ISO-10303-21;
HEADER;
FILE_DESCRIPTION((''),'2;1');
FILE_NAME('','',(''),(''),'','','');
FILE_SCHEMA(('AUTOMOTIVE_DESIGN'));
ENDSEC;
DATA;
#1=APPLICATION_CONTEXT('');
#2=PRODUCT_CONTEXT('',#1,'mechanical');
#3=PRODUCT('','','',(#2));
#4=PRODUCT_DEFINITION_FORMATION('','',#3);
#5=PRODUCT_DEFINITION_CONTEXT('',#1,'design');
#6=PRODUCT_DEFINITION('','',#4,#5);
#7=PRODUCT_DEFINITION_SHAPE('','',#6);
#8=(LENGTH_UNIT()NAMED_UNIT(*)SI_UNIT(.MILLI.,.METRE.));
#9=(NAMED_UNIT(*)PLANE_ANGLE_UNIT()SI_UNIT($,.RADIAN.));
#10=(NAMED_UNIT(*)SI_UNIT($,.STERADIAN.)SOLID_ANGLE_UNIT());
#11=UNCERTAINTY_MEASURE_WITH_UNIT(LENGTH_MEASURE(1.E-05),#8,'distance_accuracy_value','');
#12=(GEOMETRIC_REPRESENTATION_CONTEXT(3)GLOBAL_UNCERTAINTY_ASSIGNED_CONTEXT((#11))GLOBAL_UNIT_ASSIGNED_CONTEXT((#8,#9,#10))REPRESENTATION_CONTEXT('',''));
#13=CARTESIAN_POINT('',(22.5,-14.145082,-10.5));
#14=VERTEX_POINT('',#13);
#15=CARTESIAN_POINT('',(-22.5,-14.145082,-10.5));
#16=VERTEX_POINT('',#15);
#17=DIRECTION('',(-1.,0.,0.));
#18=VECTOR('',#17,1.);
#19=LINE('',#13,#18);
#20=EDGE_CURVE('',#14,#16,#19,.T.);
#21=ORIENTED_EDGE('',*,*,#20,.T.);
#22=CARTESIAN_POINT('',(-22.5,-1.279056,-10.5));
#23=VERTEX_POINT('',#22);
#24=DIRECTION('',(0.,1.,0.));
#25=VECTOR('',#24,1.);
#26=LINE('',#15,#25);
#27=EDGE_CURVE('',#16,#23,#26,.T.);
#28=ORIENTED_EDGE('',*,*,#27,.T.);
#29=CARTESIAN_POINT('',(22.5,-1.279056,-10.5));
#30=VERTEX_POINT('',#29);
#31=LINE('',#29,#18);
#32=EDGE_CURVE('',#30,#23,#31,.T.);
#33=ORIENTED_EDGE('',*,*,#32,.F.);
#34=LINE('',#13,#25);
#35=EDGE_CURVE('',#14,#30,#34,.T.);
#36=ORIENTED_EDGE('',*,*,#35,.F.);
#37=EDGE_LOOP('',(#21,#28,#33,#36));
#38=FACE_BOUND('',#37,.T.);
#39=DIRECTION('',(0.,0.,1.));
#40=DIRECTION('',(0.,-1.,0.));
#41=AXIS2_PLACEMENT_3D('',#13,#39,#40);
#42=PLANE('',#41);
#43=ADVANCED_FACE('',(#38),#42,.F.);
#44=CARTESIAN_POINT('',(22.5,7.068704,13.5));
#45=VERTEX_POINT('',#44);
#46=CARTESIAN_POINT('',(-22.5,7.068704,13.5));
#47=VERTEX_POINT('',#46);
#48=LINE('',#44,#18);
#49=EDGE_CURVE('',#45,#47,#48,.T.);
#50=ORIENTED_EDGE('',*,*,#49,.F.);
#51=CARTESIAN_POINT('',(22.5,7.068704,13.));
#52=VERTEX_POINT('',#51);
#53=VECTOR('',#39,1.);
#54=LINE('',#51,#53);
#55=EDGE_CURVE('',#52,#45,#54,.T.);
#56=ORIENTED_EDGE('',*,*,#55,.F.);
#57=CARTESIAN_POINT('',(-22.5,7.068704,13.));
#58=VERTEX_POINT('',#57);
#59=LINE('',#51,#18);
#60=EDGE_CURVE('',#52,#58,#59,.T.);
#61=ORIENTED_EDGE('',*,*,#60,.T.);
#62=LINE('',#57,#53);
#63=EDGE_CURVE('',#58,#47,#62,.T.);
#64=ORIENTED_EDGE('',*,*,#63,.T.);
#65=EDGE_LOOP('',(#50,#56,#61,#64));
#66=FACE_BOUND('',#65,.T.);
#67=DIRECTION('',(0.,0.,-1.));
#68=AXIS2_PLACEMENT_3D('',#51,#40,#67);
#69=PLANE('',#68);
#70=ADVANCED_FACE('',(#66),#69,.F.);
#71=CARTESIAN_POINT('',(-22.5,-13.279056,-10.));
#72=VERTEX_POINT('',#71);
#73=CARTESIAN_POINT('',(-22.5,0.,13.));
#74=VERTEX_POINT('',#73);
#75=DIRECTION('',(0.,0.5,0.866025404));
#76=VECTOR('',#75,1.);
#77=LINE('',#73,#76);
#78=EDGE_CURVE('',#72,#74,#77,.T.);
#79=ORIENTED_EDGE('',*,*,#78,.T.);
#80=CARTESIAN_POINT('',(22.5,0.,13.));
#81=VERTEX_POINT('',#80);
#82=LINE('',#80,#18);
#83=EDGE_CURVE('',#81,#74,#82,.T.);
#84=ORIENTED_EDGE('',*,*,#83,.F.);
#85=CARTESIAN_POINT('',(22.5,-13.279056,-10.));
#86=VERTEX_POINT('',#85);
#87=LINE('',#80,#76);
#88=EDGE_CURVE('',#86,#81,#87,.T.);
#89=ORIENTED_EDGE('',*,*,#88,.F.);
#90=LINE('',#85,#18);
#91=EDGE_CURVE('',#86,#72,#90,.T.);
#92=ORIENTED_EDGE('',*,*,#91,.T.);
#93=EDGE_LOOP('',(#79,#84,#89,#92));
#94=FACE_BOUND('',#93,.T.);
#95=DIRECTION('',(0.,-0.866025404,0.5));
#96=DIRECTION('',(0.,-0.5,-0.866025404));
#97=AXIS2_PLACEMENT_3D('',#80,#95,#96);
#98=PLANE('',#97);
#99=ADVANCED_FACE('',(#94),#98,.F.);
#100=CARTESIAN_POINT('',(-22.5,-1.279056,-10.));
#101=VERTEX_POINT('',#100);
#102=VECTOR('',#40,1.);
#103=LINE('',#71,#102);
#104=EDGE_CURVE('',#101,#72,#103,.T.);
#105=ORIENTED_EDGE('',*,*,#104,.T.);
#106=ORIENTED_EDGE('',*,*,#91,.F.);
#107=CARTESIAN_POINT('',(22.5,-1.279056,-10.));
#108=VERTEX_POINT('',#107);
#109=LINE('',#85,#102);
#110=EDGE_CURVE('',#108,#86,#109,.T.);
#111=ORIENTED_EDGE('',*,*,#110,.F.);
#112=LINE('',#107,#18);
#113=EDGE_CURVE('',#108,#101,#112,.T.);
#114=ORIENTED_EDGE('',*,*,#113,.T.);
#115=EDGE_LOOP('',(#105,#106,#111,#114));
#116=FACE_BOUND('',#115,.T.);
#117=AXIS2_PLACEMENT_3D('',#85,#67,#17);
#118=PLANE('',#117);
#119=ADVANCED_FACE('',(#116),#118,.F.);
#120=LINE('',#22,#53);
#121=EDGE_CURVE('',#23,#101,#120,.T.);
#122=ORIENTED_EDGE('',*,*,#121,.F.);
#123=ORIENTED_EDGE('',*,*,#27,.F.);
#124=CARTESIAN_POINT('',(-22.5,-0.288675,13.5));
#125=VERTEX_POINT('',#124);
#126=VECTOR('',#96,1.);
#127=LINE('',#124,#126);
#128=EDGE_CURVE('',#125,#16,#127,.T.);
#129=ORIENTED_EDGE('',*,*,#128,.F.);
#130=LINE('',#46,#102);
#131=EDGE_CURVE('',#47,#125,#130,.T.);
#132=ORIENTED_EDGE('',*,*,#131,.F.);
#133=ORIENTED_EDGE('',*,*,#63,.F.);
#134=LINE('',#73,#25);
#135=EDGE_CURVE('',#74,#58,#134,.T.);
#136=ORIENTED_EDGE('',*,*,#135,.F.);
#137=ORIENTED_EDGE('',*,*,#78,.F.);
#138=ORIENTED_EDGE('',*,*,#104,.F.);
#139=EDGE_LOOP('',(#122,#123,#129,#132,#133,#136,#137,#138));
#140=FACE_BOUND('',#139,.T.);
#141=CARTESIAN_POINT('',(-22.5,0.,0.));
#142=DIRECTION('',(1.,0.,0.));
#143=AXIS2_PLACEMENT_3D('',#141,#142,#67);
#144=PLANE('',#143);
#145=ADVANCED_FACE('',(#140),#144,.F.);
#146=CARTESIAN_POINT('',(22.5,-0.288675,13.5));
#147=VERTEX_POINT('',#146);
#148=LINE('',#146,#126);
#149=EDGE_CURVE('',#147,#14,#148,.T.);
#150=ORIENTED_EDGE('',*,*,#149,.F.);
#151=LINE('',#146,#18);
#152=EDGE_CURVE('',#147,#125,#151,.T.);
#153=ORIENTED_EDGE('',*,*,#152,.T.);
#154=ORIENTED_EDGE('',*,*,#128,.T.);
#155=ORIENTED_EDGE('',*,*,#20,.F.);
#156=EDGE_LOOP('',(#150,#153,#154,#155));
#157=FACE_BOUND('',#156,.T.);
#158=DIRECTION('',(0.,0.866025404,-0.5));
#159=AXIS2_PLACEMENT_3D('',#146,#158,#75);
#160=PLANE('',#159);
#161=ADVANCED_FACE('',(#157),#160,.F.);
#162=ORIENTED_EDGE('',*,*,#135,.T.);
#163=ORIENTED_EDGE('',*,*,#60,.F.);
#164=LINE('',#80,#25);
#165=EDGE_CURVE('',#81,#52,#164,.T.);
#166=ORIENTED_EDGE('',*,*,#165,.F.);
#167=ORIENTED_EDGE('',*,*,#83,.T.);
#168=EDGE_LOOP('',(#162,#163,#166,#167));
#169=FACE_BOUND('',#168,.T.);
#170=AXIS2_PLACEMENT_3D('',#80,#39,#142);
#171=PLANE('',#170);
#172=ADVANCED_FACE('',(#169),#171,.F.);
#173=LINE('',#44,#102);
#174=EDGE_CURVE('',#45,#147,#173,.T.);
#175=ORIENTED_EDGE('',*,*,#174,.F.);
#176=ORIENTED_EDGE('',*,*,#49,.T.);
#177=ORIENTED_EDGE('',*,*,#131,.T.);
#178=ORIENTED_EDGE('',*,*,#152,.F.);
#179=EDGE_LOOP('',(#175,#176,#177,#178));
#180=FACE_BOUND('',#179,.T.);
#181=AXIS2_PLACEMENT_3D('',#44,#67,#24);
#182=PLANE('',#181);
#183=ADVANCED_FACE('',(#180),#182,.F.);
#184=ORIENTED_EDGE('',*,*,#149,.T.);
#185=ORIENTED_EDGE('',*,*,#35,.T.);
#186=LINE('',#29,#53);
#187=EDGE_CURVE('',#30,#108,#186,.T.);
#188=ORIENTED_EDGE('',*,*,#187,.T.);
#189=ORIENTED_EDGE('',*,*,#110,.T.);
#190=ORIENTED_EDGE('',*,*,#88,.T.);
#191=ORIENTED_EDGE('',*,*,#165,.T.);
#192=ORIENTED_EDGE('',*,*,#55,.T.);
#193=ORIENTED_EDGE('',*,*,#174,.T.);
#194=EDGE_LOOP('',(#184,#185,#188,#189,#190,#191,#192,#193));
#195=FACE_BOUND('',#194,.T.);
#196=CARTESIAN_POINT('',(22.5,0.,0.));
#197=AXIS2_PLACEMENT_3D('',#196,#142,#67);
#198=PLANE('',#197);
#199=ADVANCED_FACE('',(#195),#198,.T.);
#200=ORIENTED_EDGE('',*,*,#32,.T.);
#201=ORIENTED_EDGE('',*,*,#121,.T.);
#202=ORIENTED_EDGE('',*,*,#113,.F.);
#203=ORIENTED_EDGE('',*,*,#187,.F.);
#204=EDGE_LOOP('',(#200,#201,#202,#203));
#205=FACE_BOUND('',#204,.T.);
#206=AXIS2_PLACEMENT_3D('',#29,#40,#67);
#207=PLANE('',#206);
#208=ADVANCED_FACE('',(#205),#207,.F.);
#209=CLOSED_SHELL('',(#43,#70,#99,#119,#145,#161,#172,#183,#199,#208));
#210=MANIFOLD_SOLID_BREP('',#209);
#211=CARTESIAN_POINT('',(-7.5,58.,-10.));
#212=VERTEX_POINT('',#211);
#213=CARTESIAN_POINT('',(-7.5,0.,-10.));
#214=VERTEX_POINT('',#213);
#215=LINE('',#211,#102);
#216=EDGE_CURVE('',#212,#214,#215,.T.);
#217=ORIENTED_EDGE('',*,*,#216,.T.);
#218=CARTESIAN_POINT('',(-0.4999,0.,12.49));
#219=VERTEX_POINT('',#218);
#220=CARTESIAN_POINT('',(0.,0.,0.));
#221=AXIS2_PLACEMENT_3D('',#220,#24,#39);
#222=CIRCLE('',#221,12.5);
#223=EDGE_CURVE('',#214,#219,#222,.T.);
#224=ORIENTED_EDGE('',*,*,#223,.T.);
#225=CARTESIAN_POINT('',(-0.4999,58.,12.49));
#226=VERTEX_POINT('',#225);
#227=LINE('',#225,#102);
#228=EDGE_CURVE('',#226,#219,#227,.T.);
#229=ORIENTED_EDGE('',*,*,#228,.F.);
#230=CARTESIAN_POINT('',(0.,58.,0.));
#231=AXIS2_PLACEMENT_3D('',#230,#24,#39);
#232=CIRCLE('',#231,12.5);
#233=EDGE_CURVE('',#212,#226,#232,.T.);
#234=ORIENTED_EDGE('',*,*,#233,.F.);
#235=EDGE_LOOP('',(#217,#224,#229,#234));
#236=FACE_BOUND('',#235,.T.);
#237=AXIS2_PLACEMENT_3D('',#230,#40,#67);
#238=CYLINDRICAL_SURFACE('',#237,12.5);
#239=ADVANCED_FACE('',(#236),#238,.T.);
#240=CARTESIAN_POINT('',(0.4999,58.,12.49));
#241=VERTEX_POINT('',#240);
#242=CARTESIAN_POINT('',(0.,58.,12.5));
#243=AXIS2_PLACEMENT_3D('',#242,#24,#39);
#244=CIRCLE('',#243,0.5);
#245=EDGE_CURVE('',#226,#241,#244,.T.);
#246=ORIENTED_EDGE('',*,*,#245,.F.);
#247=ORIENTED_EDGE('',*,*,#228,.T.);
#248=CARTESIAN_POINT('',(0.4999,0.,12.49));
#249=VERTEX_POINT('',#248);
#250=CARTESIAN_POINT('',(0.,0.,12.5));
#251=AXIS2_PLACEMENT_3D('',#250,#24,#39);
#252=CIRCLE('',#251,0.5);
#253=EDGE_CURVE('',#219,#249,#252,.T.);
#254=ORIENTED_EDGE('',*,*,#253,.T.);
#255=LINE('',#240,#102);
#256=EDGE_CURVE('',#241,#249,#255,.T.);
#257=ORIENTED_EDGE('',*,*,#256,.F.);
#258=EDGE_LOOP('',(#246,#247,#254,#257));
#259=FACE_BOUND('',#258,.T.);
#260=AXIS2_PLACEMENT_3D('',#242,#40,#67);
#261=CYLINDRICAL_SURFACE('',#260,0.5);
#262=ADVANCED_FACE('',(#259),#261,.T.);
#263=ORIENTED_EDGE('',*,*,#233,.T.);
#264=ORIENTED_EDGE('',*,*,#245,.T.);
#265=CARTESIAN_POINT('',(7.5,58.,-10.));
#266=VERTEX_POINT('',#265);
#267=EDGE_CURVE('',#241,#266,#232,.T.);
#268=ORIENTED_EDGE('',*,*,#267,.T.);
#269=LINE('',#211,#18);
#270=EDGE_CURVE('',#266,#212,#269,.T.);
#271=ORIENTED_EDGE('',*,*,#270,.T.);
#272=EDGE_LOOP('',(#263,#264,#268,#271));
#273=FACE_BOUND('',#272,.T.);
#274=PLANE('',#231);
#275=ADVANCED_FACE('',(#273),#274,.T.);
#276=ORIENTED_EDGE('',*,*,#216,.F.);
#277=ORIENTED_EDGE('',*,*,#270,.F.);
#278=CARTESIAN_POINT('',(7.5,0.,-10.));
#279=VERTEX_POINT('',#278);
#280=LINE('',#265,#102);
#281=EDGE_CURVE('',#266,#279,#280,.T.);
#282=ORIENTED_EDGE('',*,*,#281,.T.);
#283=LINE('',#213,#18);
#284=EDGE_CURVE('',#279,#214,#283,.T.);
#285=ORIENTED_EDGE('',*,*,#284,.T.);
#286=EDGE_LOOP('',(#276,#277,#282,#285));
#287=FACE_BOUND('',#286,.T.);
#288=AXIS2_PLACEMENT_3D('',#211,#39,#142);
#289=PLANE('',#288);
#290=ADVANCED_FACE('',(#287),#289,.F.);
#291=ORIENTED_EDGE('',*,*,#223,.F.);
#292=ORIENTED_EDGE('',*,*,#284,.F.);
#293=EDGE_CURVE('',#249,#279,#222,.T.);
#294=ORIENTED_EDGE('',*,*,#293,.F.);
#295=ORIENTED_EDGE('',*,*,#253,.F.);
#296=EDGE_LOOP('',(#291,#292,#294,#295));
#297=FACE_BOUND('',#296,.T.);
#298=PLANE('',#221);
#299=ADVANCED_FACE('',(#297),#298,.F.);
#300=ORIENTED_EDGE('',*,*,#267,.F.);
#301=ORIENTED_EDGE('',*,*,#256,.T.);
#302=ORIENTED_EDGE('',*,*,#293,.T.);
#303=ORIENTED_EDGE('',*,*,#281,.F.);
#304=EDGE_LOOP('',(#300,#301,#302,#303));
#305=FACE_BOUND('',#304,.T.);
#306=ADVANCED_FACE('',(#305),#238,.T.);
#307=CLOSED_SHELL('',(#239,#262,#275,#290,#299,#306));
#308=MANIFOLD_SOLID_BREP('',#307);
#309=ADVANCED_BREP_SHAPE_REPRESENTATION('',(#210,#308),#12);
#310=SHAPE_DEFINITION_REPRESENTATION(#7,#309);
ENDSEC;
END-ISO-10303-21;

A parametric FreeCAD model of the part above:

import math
import FreeCAD as App
import Part
import Sketcher
Q = App.Units.Quantity


def add_polygon(sketch, points):
    """Adds a closed chain of lines whose ends are joined by coincident constraints."""
    first, n = sketch.GeometryCount, len(points)
    for a, b in zip(points, points[1:] + points[:1]):
        sketch.addGeometry(Part.LineSegment(App.Vector(*a, 0), App.Vector(*b, 0)), False)
    for i in range(n):
        sketch.addConstraint(Sketcher.Constraint("Coincident", first + i, 2, first + (i + 1) % n, 1))

doc = App.newDocument("Part")
body = doc.addObject("PartDesign::Body", "Body")

# Sketch on XZ plane
sketch1 = body.newObject("Sketcher::SketchObject", "Sketch")
sketch1.AttachmentSupport = (doc.getObject("XZ_Plane"), [""])
sketch1.MapMode = "FlatFace"
sketch1.addGeometry(Part.LineSegment(App.Vector(7.5, -10, 0), App.Vector(-7.5, -10, 0)), False)
sketch1.addGeometry(Part.ArcOfCircle(Part.Circle(App.Vector(0, 0, 0), App.Vector(0, 0, 1), 12.5), math.radians(92), math.radians(233)), False)
sketch1.addGeometry(Part.ArcOfCircle(Part.Circle(App.Vector(0, 12.5, 0), App.Vector(0, 0, 1), 0.5), math.radians(-1), math.radians(181)), False)
sketch1.addGeometry(Part.ArcOfCircle(Part.Circle(App.Vector(0, 0, 0), App.Vector(0, 0, 1), 12.5), math.radians(-53), math.radians(88)), False)
sketch1.addConstraint(Sketcher.Constraint("Coincident", 0, 2, 1, 2))
sketch1.addConstraint(Sketcher.Constraint("Coincident", 1, 1, 2, 2))
sketch1.addConstraint(Sketcher.Constraint("Coincident", 2, 1, 3, 2))
sketch1.addConstraint(Sketcher.Constraint("Coincident", 3, 1, 0, 1))
sketch1.addConstraint(Sketcher.Constraint("Horizontal", 0))
sketch1.addConstraint(Sketcher.Constraint("Coincident", 1, 3, -1, 1))
sketch1.addConstraint(Sketcher.Constraint("Coincident", 3, 3, -1, 1))
sketch1.addConstraint(Sketcher.Constraint("Equal", 1, 3))
sketch1.addConstraint(Sketcher.Constraint("PointOnObject", 2, 3, -2))
sketch1.addConstraint(Sketcher.Constraint("Radius", 1, Q("12.5 mm")))
sketch1.addConstraint(Sketcher.Constraint("Radius", 2, Q("0.5 mm")))
sketch1.addConstraint(Sketcher.Constraint("DistanceX", 0, 2, 0, 1, Q("15 mm")))
sketch1.addConstraint(Sketcher.Constraint("DistanceY", -1, 1, 2, 3, Q("12.5 mm")))
pad1 = body.newObject("PartDesign::Pad", "Pad")
pad1.Profile = sketch1
pad1.Length = 58
pad1.Reversed = True
body2 = doc.addObject("PartDesign::Body", "Body001")

# Sketch on YZ plane
sketch2 = body2.newObject("Sketcher::SketchObject", "Sketch001")
sketch2.AttachmentSupport = (doc.getObject("YZ_Plane001"), [""])
sketch2.MapMode = "FlatFace"
add_polygon(sketch2, [(-13.3, -10), (0, 13), (7.1, 13), (7.1, 13.5), (-0.3, 13.5), (-14.1, -10.5), (-1.3, -10.5), (-1.3, -10)])  # lines 0-7
sketch2.addConstraint(Sketcher.Constraint("Horizontal", 1))
sketch2.addConstraint(Sketcher.Constraint("Vertical", 2))
sketch2.addConstraint(Sketcher.Constraint("Horizontal", 3))
sketch2.addConstraint(Sketcher.Constraint("Horizontal", 5))
sketch2.addConstraint(Sketcher.Constraint("Vertical", 6))
sketch2.addConstraint(Sketcher.Constraint("Horizontal", 7))
sketch2.addConstraint(Sketcher.Constraint("PointOnObject", 0, 2, -2))
sketch2.addConstraint(Sketcher.Constraint("Parallel", 0, 4))
sketch2.addConstraint(Sketcher.Constraint("Equal", 2, 6))
sketch2.addConstraint(Sketcher.Constraint("DistanceX", 7, 2, 7, 1, Q("12 mm")))
sketch2.addConstraint(Sketcher.Constraint("Angle", 0, Q("60 deg")))
sketch2.addConstraint(Sketcher.Constraint("DistanceY", 2, 1, 2, 2, Q("0.5 mm")))
sketch2.addConstraint(Sketcher.Constraint("DistanceY", -1, 1, 0, 2, Q("13 mm")))
sketch2.addConstraint(Sketcher.Constraint("DistanceY", 6, 2, -1, 1, Q("10 mm")))
sketch2.addConstraint(Sketcher.Constraint("DistanceX", 3, 2, 3, 1, Q("7.357379 mm")))
sketch2.addConstraint(Sketcher.Constraint("DistanceX", 1, 1, 1, 2, Q("7.068704 mm")))
pad2 = body2.newObject("PartDesign::Pad", "Pad001")
pad2.Profile = sketch2
pad2.Length = 45
pad2.Midplane = True

doc.recompute()
